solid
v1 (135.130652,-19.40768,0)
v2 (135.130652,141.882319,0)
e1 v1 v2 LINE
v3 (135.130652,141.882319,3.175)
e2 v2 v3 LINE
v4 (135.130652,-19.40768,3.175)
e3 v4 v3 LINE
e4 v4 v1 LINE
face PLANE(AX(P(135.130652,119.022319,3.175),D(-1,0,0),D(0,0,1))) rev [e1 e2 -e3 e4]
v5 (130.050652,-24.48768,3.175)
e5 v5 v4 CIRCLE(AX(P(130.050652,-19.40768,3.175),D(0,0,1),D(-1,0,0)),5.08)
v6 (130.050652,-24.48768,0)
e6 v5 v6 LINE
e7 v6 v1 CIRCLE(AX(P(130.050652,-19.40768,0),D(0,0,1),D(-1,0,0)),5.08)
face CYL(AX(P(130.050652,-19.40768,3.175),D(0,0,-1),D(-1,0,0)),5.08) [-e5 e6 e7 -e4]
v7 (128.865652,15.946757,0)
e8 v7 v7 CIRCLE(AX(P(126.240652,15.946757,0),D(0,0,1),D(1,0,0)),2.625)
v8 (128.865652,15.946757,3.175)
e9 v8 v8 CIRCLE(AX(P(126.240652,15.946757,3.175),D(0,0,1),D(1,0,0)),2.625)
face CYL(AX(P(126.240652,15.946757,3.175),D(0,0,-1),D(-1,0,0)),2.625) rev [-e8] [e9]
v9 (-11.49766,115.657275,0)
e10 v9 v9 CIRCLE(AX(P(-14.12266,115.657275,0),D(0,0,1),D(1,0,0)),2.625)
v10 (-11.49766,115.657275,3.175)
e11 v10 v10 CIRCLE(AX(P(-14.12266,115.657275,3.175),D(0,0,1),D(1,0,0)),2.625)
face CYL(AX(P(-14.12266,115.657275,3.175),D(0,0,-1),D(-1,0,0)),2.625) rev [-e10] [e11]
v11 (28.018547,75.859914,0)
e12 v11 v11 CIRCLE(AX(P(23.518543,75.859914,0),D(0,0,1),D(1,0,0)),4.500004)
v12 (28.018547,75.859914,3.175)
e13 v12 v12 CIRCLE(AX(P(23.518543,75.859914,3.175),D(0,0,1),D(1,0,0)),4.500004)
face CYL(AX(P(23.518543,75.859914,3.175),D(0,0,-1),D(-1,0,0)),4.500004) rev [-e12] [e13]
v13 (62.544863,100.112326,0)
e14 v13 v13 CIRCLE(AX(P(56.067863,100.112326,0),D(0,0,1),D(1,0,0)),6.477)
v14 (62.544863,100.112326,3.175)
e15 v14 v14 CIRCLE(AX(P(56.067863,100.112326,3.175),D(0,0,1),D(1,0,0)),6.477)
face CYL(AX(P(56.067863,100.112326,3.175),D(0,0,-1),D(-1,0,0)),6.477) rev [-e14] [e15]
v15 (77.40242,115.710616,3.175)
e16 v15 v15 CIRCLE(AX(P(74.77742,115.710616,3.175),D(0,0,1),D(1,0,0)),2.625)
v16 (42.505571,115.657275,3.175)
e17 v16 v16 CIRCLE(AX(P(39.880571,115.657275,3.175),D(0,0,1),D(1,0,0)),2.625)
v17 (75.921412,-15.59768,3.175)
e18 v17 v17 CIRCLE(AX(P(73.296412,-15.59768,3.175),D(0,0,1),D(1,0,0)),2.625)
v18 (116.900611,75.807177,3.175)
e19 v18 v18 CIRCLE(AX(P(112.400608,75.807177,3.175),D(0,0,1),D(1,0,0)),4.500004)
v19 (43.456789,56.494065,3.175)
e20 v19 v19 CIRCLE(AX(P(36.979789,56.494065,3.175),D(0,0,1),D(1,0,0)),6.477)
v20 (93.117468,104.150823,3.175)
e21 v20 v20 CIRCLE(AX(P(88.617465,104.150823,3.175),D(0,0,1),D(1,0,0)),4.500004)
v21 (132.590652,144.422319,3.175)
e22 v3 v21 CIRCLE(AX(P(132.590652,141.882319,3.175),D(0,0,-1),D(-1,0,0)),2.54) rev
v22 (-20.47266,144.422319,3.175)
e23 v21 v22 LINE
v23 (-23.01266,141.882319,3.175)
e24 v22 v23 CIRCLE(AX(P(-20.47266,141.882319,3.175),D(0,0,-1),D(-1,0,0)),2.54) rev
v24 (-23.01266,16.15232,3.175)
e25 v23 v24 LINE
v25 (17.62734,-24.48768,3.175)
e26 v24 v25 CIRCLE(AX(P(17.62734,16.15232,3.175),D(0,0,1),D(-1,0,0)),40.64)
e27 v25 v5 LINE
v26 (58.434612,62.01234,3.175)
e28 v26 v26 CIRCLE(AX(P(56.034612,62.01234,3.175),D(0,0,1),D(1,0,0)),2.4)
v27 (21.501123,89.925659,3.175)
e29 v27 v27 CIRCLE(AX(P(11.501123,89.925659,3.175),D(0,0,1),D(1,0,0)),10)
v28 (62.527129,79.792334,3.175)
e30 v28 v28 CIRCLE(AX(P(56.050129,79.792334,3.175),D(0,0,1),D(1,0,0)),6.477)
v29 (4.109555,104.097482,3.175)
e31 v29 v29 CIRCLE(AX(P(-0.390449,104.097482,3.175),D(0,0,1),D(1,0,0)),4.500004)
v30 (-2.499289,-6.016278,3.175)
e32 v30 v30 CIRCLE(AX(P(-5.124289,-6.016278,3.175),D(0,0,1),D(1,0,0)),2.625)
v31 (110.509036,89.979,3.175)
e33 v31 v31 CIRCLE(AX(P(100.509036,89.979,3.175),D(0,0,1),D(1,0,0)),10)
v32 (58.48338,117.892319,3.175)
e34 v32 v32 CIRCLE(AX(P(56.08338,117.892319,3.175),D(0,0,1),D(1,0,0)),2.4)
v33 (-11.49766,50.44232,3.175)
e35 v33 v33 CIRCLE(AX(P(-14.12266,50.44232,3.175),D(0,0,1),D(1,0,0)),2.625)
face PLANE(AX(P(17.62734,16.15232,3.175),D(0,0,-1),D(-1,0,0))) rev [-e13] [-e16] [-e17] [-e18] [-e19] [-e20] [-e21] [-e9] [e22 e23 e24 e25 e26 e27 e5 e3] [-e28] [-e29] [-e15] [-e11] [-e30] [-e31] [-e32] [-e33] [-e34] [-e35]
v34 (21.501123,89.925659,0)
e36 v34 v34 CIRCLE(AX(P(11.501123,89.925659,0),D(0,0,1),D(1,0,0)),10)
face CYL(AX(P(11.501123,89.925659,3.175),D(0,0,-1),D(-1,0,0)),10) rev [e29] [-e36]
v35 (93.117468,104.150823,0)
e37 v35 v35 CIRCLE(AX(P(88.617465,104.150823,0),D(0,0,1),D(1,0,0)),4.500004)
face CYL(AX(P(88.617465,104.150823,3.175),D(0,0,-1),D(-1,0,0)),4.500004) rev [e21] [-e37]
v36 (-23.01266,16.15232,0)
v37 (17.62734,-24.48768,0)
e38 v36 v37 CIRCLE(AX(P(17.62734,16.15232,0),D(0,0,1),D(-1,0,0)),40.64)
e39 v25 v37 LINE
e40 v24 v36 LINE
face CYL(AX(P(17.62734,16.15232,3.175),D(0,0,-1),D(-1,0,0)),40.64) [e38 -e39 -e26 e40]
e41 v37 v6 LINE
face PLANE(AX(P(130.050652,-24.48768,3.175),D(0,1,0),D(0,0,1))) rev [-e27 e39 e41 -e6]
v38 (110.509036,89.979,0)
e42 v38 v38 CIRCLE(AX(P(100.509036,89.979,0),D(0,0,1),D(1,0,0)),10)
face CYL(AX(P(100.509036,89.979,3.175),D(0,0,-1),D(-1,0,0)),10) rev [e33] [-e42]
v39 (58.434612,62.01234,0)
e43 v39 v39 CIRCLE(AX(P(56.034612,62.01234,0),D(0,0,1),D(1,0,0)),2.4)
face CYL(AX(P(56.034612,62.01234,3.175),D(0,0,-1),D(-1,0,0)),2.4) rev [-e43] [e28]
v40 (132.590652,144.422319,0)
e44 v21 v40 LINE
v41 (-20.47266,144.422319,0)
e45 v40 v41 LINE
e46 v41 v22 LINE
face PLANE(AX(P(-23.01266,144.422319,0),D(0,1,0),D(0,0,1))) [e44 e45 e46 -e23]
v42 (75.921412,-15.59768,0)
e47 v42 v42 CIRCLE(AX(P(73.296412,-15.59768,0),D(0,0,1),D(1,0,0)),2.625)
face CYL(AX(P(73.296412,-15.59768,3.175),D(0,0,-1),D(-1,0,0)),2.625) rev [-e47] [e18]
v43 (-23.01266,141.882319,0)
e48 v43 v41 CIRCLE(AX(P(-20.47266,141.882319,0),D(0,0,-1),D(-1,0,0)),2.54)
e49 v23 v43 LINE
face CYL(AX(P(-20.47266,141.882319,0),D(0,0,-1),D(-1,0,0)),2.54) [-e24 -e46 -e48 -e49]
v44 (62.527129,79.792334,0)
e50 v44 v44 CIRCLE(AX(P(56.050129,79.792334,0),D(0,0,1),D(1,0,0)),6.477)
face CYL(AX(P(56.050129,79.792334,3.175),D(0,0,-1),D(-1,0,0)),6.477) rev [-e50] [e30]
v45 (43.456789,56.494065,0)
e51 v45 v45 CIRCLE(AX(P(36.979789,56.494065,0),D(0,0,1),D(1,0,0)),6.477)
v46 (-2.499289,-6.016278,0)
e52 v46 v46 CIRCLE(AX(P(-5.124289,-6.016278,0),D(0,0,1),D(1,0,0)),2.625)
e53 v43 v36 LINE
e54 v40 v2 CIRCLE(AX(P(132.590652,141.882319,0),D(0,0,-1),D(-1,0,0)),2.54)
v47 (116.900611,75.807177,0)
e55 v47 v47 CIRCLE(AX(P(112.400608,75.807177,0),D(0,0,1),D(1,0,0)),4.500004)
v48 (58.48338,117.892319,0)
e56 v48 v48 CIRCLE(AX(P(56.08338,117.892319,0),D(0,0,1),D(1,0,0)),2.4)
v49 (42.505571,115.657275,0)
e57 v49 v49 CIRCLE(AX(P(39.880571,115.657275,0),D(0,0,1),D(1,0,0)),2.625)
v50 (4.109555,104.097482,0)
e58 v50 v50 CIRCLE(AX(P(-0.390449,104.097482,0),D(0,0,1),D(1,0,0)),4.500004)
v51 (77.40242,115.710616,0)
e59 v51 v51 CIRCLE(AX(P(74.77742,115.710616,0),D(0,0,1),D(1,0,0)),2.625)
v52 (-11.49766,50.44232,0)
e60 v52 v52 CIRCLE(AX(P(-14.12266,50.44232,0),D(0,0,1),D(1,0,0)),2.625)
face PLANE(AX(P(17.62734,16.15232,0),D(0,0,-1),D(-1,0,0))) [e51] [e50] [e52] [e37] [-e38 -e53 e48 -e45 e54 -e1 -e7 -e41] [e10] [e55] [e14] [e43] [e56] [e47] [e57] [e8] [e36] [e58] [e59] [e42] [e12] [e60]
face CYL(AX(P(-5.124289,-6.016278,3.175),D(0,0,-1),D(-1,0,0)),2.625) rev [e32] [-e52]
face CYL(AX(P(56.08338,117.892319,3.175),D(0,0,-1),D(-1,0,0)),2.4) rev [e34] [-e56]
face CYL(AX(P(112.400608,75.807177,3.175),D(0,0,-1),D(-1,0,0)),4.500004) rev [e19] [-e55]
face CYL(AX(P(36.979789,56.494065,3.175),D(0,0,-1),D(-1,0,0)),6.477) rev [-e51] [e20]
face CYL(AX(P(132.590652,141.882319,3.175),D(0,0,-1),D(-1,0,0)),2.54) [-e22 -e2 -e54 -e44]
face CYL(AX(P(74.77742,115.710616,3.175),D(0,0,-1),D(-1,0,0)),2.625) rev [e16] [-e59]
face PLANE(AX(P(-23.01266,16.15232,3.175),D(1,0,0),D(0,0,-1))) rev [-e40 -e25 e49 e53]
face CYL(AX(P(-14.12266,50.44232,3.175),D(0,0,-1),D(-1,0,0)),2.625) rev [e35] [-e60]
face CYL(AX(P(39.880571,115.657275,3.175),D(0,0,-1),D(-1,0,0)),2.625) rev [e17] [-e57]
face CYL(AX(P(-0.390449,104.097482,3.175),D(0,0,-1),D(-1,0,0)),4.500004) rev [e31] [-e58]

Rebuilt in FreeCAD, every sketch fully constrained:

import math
import FreeCAD as App
import Part
import Sketcher
from FreeCAD import Vector
Q = App.Units.Quantity


def edges_at(feature, points):
    """Names of the edges that pass closest to the given points."""
    edges = feature.Shape.Edges
    near = lambda p: min(range(len(edges)), key=lambda i: edges[i].distToShape(Part.Vertex(*p))[0])
    return sorted({f"Edge{near(p) + 1}" for p in points})

doc = App.newDocument("Part")
body = doc.addObject("PartDesign::Body", "Body")

sketch1 = body.newObject("Sketcher::SketchObject", "Sketch")
sketch1.AttachmentSupport = (doc.getObject("XY_Plane"), [""])
sketch1.MapMode = "FlatFace"
sketch1.addGeometry([
    Part.LineSegment(Vector(128.8, 125.4, 0), Vector(-16.7, 125.4, 0)),
    Part.ArcOfCircle(Part.Circle(Vector(-16.7, 119, 0), Vector(0, 0, 1), 6.3), math.radians(90), math.radians(180)),
    Part.LineSegment(Vector(-23, 119, 0), Vector(-23, 16.2, 0)),
    Part.ArcOfCircle(Part.Circle(Vector(17.6, 16.2, 0), Vector(0, 0, 1), 40.6), math.radians(-180), math.radians(-90)),
    Part.LineSegment(Vector(17.6, -24.5, 0), Vector(130.1, -24.5, 0)),
    Part.ArcOfCircle(Part.Circle(Vector(130.1, -19.4, 0), Vector(0, 0, 1), 5.1), math.radians(-90), math.radians(0)),
    Part.LineSegment(Vector(135.1, -19.4, 0), Vector(135.1, 119, 0)),
    Part.ArcOfCircle(Part.Circle(Vector(128.8, 119, 0), Vector(0, 0, 1), 6.3), math.radians(0), math.radians(90)),
    Part.Circle(Vector(126.2, 15.9, 0), Vector(0, 0, 1), 2.6),
    Part.Circle(Vector(73.3, -15.6, 0), Vector(0, 0, 1), 2.6),
    Part.Circle(Vector(-5.1, -6, 0), Vector(0, 0, 1), 2.6),
    Part.Circle(Vector(-14.1, 50.4, 0), Vector(0, 0, 1), 2.6),
    Part.Circle(Vector(112.4, 75.8, 0), Vector(0, 0, 1), 4.5),
    Part.Circle(Vector(100.5, 90, 0), Vector(0, 0, 1), 10),
    Part.Circle(Vector(56.1, 100.1, 0), Vector(0, 0, 1), 6.5),
    Part.Circle(Vector(88.6, 104.2, 0), Vector(0, 0, 1), 4.5),
    Part.Circle(Vector(74.8, 115.7, 0), Vector(0, 0, 1), 2.6),
    Part.Circle(Vector(56.1, 117.9, 0), Vector(0, 0, 1), 2.4),
    Part.Circle(Vector(56, 62, 0), Vector(0, 0, 1), 2.4),
    Part.Circle(Vector(37, 56.5, 0), Vector(0, 0, 1), 6.5),
    Part.Circle(Vector(56.1, 79.8, 0), Vector(0, 0, 1), 6.5),
    Part.Circle(Vector(23.5, 75.9, 0), Vector(0, 0, 1), 4.5),
    Part.Circle(Vector(39.9, 115.7, 0), Vector(0, 0, 1), 2.6),
    Part.Circle(Vector(11.5, 89.9, 0), Vector(0, 0, 1), 10),
    Part.Circle(Vector(-0.4, 104.1, 0), Vector(0, 0, 1), 4.5),
    Part.Circle(Vector(-14.1, 115.7, 0), Vector(0, 0, 1), 2.6),
], False)
sketch1.addConstraint([
    Sketcher.Constraint("Tangent", 0, 2, 1, 1),
    Sketcher.Constraint("Tangent", 1, 2, 2, 1),
    Sketcher.Constraint("Tangent", 2, 2, 3, 1),
    Sketcher.Constraint("Tangent", 3, 2, 4, 1),
    Sketcher.Constraint("Tangent", 4, 2, 5, 1),
    Sketcher.Constraint("Tangent", 5, 2, 6, 1),
    Sketcher.Constraint("Tangent", 6, 2, 7, 1),
    Sketcher.Constraint("Tangent", 7, 2, 0, 1),
    Sketcher.Constraint("Horizontal", 0),
    Sketcher.Constraint("Vertical", 2),
    Sketcher.Constraint("Horizontal", 4),
    Sketcher.Constraint("Vertical", 6),
    Sketcher.Constraint("Equal", 1, 7),
    Sketcher.Constraint("Equal", 8, 9),
    Sketcher.Constraint("Equal", 9, 10),
    Sketcher.Constraint("Equal", 10, 11),
    Sketcher.Constraint("Equal", 12, 15),
    Sketcher.Constraint("Equal", 11, 16),
    Sketcher.Constraint("Equal", 17, 18),
    Sketcher.Constraint("Equal", 14, 19),
    Sketcher.Constraint("Equal", 19, 20),
    Sketcher.Constraint("Equal", 15, 21),
    Sketcher.Constraint("Equal", 16, 22),
    Sketcher.Constraint("Equal", 13, 23),
    Sketcher.Constraint("Equal", 21, 24),
    Sketcher.Constraint("Equal", 22, 25),
    Sketcher.Constraint("Horizontal", 22, 3, 25, 3),
    Sketcher.Constraint("Vertical", 11, 3, 25, 3),
    Sketcher.Constraint("Radius", 3, Q("1.6 in")),
    Sketcher.Constraint("Radius", 5, Q("0.2 in")),
    Sketcher.Constraint("Diameter", 14, Q("0.51 in")),
    Sketcher.Constraint("Radius", 1, Q("0.25 in")),
    Sketcher.Constraint("DistanceY", 2, 2, 2, 1, Q("4.05 in")),
    Sketcher.Constraint("DistanceX", 8, 3, 7, 3, Q("0.1 in")),
    Sketcher.Constraint("DistanceY", 9, 3, 7, 3, Q("5.3 in")),
    Sketcher.Constraint("DistanceX", 1, 3, 11, 3, Q("0.1 in")),
    Sketcher.Constraint("DistanceY", 11, 3, 1, 3, Q("2.7 in")),
    Sketcher.Constraint("Diameter", 8, Q("5.25 mm")),
    Sketcher.Constraint("Diameter", 13, Q("20 mm")),
    Sketcher.Constraint("Diameter", 17, Q("4.8 mm")),
    Sketcher.Constraint("Diameter", 12, Q("9.000007 mm")),
    Sketcher.Constraint("DistanceX", -1, 1, 23, 3, Q("0.4528001 in")),
    Sketcher.Constraint("DistanceY", 22, 3, 16, 3, Q("0.0021 in")),
    Sketcher.Constraint("DistanceX", 0, 2, 0, 1, Q("145.443312 mm")),
    Sketcher.Constraint("DistanceY", -1, 1, 13, 3, Q("89.979 mm")),
    Sketcher.Constraint("DistanceY", 10, 3, 3, 3, Q("22.168598 mm")),
    Sketcher.Constraint("DistanceX", 10, 3, 9, 3, Q("78.420701 mm")),
    Sketcher.Constraint("DistanceX", 14, 3, 15, 3, Q("32.549602 mm")),
    Sketcher.Constraint("DistanceX", 1, 3, -1, 1, Q("16.66266 mm")),
    Sketcher.Constraint("DistanceY", -1, 1, 1, 3, Q("119.022319 mm")),
    Sketcher.Constraint("DistanceX", -1, 1, 9, 3, Q("73.296412 mm")),
    Sketcher.Constraint("DistanceX", -1, 1, 16, 3, Q("74.77742 mm")),
    Sketcher.Constraint("DistanceX", -1, 1, 17, 3, Q("56.08338 mm")),
    Sketcher.Constraint("DistanceY", -1, 1, 17, 3, Q("117.892319 mm")),
    Sketcher.Constraint("DistanceX", -1, 1, 18, 3, Q("56.034612 mm")),
    Sketcher.Constraint("DistanceY", -1, 1, 18, 3, Q("62.01234 mm")),
    Sketcher.Constraint("DistanceX", -1, 1, 19, 3, Q("36.979789 mm")),
    Sketcher.Constraint("DistanceX", -1, 1, 20, 3, Q("56.050129 mm")),
    Sketcher.Constraint("DistanceX", -1, 1, 22, 3, Q("39.880571 mm")),
    Sketcher.Constraint("DistanceY", -1, 1, 23, 3, Q("89.925659 mm")),
    Sketcher.Constraint("DistanceX", 24, 3, -1, 1, Q("0.390449 mm")),
    Sketcher.Constraint("DistanceY", 12, 3, 7, 3, Q("43.215142 mm")),
    Sketcher.Constraint("DistanceY", 8, 3, 12, 3, Q("59.86042 mm")),
    Sketcher.Constraint("DistanceX", 13, 3, 12, 3, Q("11.891571 mm")),
    Sketcher.Constraint("DistanceY", 12, 3, 14, 3, Q("24.305149 mm")),
    Sketcher.Constraint("DistanceX", 14, 3, 7, 3, Q("72.712789 mm")),
    Sketcher.Constraint("DistanceX", 15, 3, 13, 3, Q("11.891571 mm")),
    Sketcher.Constraint("DistanceY", 14, 3, 16, 3, Q("15.59829 mm")),
    Sketcher.Constraint("DistanceY", 19, 3, 14, 3, Q("43.618261 mm")),
    Sketcher.Constraint("DistanceY", 19, 3, 20, 3, Q("23.298269 mm")),
    Sketcher.Constraint("DistanceY", 19, 3, 21, 3, Q("19.365849 mm")),
    Sketcher.Constraint("DistanceX", 21, 3, 18, 3, Q("32.516069 mm")),
    Sketcher.Constraint("DistanceY", 21, 3, 24, 3, Q("28.237569 mm")),
    Sketcher.Constraint("DistanceY", -1, 1, 15, 3, Q("104.150823 mm")),
])
pad1 = body.newObject("PartDesign::Pad", "Pad")
pad1.Profile = sketch1
pad1.Length = Q("0.125 in")

sketch2 = body.newObject("Sketcher::SketchObject", "Sketch001")
sketch2.AttachmentSupport = (doc.getObject("XY_Plane"), [""])
sketch2.MapMode = "FlatFace"
sketch2.addGeometry([
    Part.LineSegment(Vector(-23, 144, 0), Vector(-23, 119, 0)),
    Part.ArcOfCircle(Part.Circle(Vector(-17, 119, 0), Vector(0, 0, 1), 6), math.radians(90), math.radians(180)),
    Part.LineSegment(Vector(-17, 125, 0), Vector(129, 125, 0)),
    Part.ArcOfCircle(Part.Circle(Vector(129, 119, 0), Vector(0, 0, 1), 6), math.radians(0), math.radians(90)),
    Part.LineSegment(Vector(135, 119, 0), Vector(135, 144, 0)),
    Part.LineSegment(Vector(135, 144, 0), Vector(-23, 144, 0)),
], False)
sketch2.addConstraint([
    Sketcher.Constraint("Tangent", 0, 2, 1, 2),
    Sketcher.Constraint("Tangent", 1, 1, 2, 1),
    Sketcher.Constraint("Tangent", 2, 2, 3, 2),
    Sketcher.Constraint("Tangent", 3, 1, 4, 1),
    Sketcher.Constraint("Coincident", 4, 2, 5, 1),
    Sketcher.Constraint("Coincident", 5, 2, 0, 1),
    Sketcher.Constraint("Vertical", 0),
    Sketcher.Constraint("Horizontal", 2),
    Sketcher.Constraint("Vertical", 4),
    Sketcher.Constraint("Horizontal", 5),
    Sketcher.Constraint("Equal", 1, 3),
    Sketcher.Constraint("DistanceY", 0, 2, 0, 1, Q("1 in")),
    Sketcher.Constraint("Radius", 1, Q("0.25 in")),
    Sketcher.Constraint("DistanceX", 2, 1, 2, 2, Q("145.443312 mm")),
    Sketcher.Constraint("DistanceX", 1, 3, -1, 1, Q("16.66266 mm")),
    Sketcher.Constraint("DistanceY", -1, 1, 1, 3, Q("119.022319 mm")),
])
pad2 = body.newObject("PartDesign::Pad", "Pad001")
pad2.Profile = sketch2
pad2.Length = Q("0.125 in")
doc.recompute()

fillet = body.newObject("PartDesign::Fillet", "Fillet")
fillet.Base = (pad2, edges_at(pad2, [(-23.013, 144.422, 1.587), (135.131, 144.422, 1.587)]))
fillet.Radius = Q("0.1 in")

doc.recompute()
